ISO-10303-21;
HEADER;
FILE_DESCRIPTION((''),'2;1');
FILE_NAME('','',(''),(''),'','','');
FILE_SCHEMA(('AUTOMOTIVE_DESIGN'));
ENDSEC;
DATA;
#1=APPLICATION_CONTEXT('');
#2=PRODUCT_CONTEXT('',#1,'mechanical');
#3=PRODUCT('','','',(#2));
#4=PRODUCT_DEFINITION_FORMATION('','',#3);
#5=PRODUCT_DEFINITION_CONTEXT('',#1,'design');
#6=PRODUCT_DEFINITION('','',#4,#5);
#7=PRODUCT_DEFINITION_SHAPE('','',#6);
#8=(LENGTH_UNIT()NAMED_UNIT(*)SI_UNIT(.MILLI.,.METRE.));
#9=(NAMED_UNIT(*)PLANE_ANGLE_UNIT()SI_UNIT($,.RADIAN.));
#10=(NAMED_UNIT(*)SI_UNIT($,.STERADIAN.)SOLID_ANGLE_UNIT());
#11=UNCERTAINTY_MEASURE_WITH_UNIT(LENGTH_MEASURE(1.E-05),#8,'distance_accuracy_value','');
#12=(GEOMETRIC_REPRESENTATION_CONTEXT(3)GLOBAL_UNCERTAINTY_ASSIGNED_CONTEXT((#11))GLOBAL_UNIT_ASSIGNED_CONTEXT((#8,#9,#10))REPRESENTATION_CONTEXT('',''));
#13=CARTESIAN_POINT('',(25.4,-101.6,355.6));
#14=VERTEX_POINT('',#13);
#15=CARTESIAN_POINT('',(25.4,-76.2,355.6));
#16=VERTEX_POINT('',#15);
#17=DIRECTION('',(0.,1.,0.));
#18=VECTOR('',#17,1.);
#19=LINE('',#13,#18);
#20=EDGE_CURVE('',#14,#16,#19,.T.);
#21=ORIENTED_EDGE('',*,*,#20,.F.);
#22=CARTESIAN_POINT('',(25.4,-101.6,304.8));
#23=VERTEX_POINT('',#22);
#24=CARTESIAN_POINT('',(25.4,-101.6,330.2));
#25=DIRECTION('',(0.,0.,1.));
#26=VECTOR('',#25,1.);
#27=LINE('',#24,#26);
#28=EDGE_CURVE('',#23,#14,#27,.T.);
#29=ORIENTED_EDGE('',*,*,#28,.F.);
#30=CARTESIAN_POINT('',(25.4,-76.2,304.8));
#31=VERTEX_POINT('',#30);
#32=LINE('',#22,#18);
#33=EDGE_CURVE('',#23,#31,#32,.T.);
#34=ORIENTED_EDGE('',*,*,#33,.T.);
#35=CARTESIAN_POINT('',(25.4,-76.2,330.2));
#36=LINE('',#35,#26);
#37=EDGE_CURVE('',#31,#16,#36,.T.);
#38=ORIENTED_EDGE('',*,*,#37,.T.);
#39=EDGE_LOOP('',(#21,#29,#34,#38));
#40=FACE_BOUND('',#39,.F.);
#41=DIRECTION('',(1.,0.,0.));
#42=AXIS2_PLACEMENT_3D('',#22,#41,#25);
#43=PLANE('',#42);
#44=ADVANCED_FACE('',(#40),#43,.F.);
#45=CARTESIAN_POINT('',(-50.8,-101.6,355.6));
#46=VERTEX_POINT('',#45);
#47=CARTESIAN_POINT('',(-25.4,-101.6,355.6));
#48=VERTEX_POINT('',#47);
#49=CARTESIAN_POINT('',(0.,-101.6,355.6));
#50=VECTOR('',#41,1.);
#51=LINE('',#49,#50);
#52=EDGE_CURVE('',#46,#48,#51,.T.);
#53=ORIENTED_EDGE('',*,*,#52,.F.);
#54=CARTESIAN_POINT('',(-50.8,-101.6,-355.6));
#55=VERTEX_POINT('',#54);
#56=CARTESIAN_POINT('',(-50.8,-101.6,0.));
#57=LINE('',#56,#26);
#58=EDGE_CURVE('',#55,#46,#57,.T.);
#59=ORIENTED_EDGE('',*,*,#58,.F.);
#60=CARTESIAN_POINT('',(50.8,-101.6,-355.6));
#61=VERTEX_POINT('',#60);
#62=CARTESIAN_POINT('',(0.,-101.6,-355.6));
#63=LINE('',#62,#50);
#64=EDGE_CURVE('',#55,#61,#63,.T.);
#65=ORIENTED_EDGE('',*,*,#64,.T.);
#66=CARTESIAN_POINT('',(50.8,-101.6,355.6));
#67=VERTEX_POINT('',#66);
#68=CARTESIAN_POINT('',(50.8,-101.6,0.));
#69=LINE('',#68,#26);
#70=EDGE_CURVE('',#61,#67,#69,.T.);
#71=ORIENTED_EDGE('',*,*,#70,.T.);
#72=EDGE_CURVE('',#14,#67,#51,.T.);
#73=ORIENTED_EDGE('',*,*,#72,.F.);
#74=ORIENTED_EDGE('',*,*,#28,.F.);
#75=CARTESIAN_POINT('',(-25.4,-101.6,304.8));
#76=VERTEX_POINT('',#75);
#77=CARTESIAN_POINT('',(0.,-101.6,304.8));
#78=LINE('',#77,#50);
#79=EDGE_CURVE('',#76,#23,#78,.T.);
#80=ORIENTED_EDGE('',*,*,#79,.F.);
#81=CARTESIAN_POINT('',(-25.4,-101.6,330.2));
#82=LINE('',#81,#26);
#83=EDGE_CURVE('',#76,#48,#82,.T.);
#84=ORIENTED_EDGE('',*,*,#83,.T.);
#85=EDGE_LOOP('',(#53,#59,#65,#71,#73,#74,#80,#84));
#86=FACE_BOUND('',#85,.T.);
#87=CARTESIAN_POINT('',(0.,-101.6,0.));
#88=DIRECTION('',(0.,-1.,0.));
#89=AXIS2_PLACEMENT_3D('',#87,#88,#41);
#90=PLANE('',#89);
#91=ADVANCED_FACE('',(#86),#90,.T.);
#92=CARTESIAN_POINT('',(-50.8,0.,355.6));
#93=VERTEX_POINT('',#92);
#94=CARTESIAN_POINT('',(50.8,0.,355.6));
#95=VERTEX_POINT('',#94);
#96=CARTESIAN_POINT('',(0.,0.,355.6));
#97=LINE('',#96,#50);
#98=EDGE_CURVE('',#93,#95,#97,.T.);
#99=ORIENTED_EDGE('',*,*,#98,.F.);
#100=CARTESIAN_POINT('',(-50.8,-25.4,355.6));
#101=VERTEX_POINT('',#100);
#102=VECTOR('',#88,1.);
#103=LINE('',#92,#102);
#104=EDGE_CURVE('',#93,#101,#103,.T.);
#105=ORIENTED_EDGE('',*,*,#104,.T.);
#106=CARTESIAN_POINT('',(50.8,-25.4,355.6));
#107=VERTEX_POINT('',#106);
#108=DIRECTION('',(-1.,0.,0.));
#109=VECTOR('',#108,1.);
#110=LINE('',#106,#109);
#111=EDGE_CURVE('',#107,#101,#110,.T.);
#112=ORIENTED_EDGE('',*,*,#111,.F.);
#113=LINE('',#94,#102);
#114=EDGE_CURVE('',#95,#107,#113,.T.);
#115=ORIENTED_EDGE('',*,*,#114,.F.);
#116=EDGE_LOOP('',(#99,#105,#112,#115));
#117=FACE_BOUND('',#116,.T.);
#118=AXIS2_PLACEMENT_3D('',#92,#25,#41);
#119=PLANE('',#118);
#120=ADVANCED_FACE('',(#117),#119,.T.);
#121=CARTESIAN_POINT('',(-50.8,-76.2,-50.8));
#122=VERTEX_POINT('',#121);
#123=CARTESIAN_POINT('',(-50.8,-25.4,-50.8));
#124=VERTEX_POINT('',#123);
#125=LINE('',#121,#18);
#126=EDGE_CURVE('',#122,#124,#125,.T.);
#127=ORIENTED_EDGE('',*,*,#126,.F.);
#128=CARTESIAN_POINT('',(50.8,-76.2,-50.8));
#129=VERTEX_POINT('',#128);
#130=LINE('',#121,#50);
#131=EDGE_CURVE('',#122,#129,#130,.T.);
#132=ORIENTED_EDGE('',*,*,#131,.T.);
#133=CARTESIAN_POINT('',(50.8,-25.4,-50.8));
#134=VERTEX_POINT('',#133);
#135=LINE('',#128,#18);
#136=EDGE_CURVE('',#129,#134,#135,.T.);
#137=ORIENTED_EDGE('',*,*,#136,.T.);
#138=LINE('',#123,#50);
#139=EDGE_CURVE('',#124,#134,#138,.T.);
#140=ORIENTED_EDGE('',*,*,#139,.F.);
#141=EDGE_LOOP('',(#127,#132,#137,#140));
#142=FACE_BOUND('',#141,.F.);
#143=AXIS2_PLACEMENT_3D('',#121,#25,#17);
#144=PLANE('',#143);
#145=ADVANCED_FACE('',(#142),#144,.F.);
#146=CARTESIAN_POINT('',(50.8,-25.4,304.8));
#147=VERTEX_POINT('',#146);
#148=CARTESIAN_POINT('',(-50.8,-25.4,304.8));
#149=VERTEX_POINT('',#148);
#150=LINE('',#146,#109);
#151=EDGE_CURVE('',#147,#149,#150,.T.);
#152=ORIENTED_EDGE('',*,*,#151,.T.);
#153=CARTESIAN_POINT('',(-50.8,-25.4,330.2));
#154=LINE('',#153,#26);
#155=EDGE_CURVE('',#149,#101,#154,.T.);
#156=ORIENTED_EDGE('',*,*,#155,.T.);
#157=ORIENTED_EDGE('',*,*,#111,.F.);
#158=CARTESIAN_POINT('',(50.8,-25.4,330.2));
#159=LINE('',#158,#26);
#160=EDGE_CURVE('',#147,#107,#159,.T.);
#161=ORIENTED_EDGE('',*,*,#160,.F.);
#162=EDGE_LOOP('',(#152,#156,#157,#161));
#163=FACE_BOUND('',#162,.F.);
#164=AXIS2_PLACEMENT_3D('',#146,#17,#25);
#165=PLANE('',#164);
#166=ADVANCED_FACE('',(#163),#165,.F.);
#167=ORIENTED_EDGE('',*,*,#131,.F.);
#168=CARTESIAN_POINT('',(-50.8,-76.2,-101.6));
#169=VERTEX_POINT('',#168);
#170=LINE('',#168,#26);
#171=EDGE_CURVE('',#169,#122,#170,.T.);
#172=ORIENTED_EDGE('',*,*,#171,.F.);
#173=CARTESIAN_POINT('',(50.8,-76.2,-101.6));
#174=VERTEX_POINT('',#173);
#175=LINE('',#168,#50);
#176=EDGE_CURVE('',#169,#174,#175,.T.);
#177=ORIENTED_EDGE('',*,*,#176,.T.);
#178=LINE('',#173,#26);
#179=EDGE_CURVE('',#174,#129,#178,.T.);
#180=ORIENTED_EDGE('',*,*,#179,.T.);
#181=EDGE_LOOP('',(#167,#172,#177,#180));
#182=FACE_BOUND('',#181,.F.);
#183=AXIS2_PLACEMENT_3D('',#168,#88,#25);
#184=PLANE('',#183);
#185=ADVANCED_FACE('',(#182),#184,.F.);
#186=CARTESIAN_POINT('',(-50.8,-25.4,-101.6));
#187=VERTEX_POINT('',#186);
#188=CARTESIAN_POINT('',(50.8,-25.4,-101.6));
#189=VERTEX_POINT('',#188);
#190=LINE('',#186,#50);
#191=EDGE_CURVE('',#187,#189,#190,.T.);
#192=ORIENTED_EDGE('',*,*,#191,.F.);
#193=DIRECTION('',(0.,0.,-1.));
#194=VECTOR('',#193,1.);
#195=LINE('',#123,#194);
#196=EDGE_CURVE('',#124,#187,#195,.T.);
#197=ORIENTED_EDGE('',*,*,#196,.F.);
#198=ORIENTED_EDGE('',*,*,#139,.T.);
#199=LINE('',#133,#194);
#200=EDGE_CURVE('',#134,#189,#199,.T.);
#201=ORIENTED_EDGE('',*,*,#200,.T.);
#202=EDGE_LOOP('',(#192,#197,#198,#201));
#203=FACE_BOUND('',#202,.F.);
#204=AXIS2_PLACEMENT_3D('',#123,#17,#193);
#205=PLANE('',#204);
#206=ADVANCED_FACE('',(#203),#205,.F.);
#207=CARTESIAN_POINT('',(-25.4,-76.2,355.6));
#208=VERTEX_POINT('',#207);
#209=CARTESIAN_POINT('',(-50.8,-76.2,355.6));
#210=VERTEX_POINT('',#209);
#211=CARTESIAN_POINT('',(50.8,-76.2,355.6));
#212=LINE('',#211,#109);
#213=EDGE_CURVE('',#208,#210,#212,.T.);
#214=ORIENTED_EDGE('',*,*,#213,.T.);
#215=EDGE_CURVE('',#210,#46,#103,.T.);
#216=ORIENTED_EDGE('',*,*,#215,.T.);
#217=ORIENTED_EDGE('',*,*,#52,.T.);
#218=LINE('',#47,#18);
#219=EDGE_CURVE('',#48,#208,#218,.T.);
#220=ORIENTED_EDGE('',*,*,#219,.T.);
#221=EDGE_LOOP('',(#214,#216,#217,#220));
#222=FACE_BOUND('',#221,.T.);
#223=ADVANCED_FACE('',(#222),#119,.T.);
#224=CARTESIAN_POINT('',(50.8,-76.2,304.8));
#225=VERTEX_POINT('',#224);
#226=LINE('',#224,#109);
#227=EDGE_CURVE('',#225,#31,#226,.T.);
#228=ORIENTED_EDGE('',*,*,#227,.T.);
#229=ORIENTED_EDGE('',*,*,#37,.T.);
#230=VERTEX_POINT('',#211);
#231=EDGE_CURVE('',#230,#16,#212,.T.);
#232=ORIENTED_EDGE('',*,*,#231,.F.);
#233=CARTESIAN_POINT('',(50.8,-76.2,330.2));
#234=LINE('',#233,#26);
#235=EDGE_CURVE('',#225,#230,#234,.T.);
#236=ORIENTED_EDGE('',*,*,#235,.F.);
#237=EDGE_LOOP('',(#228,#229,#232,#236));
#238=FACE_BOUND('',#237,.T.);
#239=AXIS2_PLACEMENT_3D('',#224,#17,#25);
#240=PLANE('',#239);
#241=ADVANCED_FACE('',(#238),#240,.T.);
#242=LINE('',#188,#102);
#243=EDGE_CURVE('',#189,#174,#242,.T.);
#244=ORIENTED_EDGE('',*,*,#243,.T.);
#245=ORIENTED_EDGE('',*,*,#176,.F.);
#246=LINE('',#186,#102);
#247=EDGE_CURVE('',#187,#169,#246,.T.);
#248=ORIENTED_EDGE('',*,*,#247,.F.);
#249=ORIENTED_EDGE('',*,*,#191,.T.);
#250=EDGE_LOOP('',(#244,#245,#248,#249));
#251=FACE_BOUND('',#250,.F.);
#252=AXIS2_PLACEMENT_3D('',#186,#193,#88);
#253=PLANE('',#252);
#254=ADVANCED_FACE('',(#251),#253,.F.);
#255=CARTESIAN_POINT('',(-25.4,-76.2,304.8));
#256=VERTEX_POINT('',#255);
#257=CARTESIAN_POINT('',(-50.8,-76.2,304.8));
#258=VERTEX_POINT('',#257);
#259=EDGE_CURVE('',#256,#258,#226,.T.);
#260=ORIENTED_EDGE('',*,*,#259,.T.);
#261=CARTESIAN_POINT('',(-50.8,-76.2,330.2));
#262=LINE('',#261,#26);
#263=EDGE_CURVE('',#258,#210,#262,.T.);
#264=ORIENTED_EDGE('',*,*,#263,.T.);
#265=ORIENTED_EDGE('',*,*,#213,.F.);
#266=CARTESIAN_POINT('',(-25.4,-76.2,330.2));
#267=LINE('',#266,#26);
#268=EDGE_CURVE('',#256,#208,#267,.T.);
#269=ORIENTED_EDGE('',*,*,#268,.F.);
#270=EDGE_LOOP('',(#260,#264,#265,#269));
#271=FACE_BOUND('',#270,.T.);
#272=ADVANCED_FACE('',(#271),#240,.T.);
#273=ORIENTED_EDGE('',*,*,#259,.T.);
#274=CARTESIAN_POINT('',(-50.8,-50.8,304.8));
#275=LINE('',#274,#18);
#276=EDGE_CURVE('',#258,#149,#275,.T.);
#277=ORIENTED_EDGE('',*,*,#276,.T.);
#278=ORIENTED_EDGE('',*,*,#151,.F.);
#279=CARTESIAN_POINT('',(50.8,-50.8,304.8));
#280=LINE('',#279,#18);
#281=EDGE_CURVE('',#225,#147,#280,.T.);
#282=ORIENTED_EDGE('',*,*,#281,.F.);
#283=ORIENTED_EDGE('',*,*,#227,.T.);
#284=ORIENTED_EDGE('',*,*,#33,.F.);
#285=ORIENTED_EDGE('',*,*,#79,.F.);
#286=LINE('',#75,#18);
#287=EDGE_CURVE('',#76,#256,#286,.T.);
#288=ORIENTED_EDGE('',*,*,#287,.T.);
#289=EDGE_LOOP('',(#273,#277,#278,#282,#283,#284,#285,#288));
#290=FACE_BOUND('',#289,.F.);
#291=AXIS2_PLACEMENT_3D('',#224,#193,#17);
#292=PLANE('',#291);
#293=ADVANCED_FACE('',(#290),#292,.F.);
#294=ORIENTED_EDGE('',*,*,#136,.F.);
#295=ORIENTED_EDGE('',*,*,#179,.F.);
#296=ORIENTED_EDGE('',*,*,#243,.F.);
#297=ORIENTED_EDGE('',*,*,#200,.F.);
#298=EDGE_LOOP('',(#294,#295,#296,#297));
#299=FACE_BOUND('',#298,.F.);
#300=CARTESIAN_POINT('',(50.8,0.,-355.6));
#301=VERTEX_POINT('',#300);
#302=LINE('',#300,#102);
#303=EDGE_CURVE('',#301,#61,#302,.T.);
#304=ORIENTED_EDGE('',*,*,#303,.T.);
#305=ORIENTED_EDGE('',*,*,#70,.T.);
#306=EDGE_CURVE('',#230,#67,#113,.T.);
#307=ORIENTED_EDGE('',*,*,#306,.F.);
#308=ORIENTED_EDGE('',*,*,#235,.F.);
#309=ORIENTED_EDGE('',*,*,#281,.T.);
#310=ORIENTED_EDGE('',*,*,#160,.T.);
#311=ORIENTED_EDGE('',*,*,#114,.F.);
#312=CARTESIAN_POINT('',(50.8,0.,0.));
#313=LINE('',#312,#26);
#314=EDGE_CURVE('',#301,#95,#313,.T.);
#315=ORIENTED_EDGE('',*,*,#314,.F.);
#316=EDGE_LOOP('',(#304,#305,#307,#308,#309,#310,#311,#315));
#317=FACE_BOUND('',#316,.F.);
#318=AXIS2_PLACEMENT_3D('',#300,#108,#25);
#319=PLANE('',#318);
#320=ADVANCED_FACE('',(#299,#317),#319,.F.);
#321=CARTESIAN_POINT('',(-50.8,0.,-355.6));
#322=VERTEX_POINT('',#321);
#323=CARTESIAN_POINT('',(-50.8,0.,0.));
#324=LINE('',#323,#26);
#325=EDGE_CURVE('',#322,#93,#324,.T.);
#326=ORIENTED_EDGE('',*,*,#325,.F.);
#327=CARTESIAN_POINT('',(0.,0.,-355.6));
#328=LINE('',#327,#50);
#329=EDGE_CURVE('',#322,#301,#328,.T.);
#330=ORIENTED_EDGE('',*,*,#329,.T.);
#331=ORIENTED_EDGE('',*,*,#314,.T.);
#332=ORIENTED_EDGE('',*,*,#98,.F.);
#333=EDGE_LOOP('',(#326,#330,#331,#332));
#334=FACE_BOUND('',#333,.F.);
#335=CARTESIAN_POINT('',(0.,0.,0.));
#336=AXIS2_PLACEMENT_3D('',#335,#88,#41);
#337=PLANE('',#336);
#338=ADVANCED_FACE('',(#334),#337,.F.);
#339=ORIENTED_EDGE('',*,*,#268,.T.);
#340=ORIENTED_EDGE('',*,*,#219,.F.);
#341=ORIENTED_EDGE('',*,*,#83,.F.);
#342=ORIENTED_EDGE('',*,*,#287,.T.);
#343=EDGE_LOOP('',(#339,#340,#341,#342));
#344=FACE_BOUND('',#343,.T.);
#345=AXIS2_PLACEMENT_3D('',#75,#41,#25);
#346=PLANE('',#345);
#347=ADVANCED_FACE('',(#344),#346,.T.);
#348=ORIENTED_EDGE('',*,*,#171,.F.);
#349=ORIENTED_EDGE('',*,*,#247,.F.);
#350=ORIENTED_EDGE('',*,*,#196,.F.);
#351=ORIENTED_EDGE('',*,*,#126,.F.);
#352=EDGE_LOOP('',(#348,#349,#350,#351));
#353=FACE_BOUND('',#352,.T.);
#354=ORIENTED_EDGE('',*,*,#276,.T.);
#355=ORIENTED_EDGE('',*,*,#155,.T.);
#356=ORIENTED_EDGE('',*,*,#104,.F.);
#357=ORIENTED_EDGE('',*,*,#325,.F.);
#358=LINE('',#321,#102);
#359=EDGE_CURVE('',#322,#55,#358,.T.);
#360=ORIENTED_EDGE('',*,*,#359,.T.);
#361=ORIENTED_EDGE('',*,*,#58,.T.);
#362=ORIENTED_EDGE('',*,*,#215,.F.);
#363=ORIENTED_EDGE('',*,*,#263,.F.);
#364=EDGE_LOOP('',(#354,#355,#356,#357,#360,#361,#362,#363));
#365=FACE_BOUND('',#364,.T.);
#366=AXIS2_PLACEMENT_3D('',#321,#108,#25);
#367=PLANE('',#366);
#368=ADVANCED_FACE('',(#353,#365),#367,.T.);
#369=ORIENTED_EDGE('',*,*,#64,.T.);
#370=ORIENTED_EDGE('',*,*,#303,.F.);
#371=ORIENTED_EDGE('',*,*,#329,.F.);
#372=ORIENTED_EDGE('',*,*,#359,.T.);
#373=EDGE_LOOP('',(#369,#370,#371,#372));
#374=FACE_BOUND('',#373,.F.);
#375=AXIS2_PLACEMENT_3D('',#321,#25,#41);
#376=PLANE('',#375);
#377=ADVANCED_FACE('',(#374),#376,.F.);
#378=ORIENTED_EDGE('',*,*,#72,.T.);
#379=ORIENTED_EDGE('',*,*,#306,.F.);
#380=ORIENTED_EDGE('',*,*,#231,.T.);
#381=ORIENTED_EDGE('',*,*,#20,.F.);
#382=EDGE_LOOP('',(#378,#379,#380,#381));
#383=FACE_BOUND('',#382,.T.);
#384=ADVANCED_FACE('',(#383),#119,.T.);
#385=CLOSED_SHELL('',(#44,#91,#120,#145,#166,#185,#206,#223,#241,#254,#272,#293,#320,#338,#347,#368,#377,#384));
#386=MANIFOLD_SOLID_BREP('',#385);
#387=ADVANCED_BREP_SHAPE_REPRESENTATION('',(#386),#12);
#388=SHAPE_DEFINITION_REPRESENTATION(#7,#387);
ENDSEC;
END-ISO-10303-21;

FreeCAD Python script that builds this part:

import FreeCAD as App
import Part
import Sketcher
Q = App.Units.Quantity


def add_polygon(sketch, points):
    """Adds a closed chain of lines whose ends are joined by coincident constraints."""
    first, n = sketch.GeometryCount, len(points)
    for a, b in zip(points, points[1:] + points[:1]):
        sketch.addGeometry(Part.LineSegment(App.Vector(*a, 0), App.Vector(*b, 0)), False)
    for i in range(n):
        sketch.addConstraint(Sketcher.Constraint("Coincident", first + i, 2, first + (i + 1) % n, 1))

doc = App.newDocument("Part")
body = doc.addObject("PartDesign::Body", "Body")

sketch1 = body.newObject("Sketcher::SketchObject", "Sketch")
sketch1.AttachmentSupport = (doc.getObject("XZ_Plane"), [""])
sketch1.MapMode = "FlatFace"
add_polygon(sketch1, [(-51, 356), (-51, -356), (51, -356), (51, 356)])
sketch1.addConstraint(Sketcher.Constraint("Vertical", 0))
sketch1.addConstraint(Sketcher.Constraint("Horizontal", 1))
sketch1.addConstraint(Sketcher.Constraint("Vertical", 2))
sketch1.addConstraint(Sketcher.Constraint("Horizontal", 3))
sketch1.addConstraint(Sketcher.Constraint("Symmetric", 0, 2, 2, 2, -1, 1))
sketch1.addConstraint(Sketcher.Constraint("DistanceX", 1, 1, 1, 2, Q("4 in")))
sketch1.addConstraint(Sketcher.Constraint("DistanceY", 0, 2, 0, 1, Q("28 in")))
pad1 = body.newObject("PartDesign::Pad", "Pad")
pad1.Profile = sketch1
pad1.Length = Q("4 in")

sketch2 = body.newObject("Sketcher::SketchObject", "Sketch001")
sketch2.AttachmentSupport = (doc.getObject("YZ_Plane"), [""])
sketch2.MapMode = "FlatFace"
sketch2.AttachmentOffset = App.Placement(App.Vector(0, 0, 2 * 25.4), App.Rotation())
add_polygon(sketch2, [(-76, 356), (-76, 305), (-25, 305), (-25, 356)])
sketch2.addConstraint(Sketcher.Constraint("Vertical", 0))
sketch2.addConstraint(Sketcher.Constraint("Horizontal", 1))
sketch2.addConstraint(Sketcher.Constraint("Vertical", 2))
sketch2.addConstraint(Sketcher.Constraint("Horizontal", 3))
sketch2.addConstraint(Sketcher.Constraint("Equal", 3, 0))
sketch2.addConstraint(Sketcher.Constraint("DistanceX", 1, 1, 1, 2, Q("2 in")))
sketch2.addConstraint(Sketcher.Constraint("DistanceX", 0, 2, -1, 1, Q("3 in")))
sketch2.addConstraint(Sketcher.Constraint("DistanceY", -1, 1, 0, 2, Q("12 in")))
pocket1 = body.newObject("PartDesign::Pocket", "Pocket")
pocket1.Profile = sketch2
pocket1.Length = Q("4 in")

sketch3 = body.newObject("Sketcher::SketchObject", "Sketch002")
sketch3.AttachmentSupport = (doc.getObject("XZ_Plane"), [""])
sketch3.MapMode = "FlatFace"
sketch3.AttachmentOffset = App.Placement(App.Vector(0, 0, 4 * 25.4), App.Rotation())
add_polygon(sketch3, [(-25, 356), (-25, 305), (25, 305), (25, 356)])
sketch3.addConstraint(Sketcher.Constraint("Vertical", 0))
sketch3.addConstraint(Sketcher.Constraint("Horizontal", 1))
sketch3.addConstraint(Sketcher.Constraint("Vertical", 2))
sketch3.addConstraint(Sketcher.Constraint("Horizontal", 3))
sketch3.addConstraint(Sketcher.Constraint("Equal", 3, 0))
sketch3.addConstraint(Sketcher.Constraint("DistanceX", 1, 1, 1, 2, Q("2 in")))
sketch3.addConstraint(Sketcher.Constraint("DistanceX", 0, 2, -1, 1, Q("1 in")))
sketch3.addConstraint(Sketcher.Constraint("DistanceY", -1, 1, 0, 2, Q("12 in")))
pocket2 = body.newObject("PartDesign::Pocket", "Pocket001")
pocket2.Profile = sketch3
pocket2.Length = Q("1 in")

sketch4 = body.newObject("Sketcher::SketchObject", "Sketch003")
sketch4.AttachmentSupport = (doc.getObject("YZ_Plane"), [""])
sketch4.MapMode = "FlatFace"
sketch4.AttachmentOffset = App.Placement(App.Vector(0, 0, -2 * 25.4), App.Rotation())
add_polygon(sketch4, [(-76, -102), (-76, -51), (-25, -51), (-25, -102)])
sketch4.addConstraint(Sketcher.Constraint("Vertical", 0))
sketch4.addConstraint(Sketcher.Constraint("Horizontal", 1))
sketch4.addConstraint(Sketcher.Constraint("Vertical", 2))
sketch4.addConstraint(Sketcher.Constraint("Horizontal", 3))
sketch4.addConstraint(Sketcher.Constraint("Equal", 3, 0))
sketch4.addConstraint(Sketcher.Constraint("DistanceX", 1, 1, 1, 2, Q("2 in")))
sketch4.addConstraint(Sketcher.Constraint("DistanceX", 0, 2, -1, 1, Q("3 in")))
sketch4.addConstraint(Sketcher.Constraint("DistanceY", 0, 2, -1, 1, Q("2 in")))
pocket3 = body.newObject("PartDesign::Pocket", "Pocket002")
pocket3.Profile = sketch4
pocket3.Length = Q("4 in")
pocket3.Reversed = True

doc.recompute()
